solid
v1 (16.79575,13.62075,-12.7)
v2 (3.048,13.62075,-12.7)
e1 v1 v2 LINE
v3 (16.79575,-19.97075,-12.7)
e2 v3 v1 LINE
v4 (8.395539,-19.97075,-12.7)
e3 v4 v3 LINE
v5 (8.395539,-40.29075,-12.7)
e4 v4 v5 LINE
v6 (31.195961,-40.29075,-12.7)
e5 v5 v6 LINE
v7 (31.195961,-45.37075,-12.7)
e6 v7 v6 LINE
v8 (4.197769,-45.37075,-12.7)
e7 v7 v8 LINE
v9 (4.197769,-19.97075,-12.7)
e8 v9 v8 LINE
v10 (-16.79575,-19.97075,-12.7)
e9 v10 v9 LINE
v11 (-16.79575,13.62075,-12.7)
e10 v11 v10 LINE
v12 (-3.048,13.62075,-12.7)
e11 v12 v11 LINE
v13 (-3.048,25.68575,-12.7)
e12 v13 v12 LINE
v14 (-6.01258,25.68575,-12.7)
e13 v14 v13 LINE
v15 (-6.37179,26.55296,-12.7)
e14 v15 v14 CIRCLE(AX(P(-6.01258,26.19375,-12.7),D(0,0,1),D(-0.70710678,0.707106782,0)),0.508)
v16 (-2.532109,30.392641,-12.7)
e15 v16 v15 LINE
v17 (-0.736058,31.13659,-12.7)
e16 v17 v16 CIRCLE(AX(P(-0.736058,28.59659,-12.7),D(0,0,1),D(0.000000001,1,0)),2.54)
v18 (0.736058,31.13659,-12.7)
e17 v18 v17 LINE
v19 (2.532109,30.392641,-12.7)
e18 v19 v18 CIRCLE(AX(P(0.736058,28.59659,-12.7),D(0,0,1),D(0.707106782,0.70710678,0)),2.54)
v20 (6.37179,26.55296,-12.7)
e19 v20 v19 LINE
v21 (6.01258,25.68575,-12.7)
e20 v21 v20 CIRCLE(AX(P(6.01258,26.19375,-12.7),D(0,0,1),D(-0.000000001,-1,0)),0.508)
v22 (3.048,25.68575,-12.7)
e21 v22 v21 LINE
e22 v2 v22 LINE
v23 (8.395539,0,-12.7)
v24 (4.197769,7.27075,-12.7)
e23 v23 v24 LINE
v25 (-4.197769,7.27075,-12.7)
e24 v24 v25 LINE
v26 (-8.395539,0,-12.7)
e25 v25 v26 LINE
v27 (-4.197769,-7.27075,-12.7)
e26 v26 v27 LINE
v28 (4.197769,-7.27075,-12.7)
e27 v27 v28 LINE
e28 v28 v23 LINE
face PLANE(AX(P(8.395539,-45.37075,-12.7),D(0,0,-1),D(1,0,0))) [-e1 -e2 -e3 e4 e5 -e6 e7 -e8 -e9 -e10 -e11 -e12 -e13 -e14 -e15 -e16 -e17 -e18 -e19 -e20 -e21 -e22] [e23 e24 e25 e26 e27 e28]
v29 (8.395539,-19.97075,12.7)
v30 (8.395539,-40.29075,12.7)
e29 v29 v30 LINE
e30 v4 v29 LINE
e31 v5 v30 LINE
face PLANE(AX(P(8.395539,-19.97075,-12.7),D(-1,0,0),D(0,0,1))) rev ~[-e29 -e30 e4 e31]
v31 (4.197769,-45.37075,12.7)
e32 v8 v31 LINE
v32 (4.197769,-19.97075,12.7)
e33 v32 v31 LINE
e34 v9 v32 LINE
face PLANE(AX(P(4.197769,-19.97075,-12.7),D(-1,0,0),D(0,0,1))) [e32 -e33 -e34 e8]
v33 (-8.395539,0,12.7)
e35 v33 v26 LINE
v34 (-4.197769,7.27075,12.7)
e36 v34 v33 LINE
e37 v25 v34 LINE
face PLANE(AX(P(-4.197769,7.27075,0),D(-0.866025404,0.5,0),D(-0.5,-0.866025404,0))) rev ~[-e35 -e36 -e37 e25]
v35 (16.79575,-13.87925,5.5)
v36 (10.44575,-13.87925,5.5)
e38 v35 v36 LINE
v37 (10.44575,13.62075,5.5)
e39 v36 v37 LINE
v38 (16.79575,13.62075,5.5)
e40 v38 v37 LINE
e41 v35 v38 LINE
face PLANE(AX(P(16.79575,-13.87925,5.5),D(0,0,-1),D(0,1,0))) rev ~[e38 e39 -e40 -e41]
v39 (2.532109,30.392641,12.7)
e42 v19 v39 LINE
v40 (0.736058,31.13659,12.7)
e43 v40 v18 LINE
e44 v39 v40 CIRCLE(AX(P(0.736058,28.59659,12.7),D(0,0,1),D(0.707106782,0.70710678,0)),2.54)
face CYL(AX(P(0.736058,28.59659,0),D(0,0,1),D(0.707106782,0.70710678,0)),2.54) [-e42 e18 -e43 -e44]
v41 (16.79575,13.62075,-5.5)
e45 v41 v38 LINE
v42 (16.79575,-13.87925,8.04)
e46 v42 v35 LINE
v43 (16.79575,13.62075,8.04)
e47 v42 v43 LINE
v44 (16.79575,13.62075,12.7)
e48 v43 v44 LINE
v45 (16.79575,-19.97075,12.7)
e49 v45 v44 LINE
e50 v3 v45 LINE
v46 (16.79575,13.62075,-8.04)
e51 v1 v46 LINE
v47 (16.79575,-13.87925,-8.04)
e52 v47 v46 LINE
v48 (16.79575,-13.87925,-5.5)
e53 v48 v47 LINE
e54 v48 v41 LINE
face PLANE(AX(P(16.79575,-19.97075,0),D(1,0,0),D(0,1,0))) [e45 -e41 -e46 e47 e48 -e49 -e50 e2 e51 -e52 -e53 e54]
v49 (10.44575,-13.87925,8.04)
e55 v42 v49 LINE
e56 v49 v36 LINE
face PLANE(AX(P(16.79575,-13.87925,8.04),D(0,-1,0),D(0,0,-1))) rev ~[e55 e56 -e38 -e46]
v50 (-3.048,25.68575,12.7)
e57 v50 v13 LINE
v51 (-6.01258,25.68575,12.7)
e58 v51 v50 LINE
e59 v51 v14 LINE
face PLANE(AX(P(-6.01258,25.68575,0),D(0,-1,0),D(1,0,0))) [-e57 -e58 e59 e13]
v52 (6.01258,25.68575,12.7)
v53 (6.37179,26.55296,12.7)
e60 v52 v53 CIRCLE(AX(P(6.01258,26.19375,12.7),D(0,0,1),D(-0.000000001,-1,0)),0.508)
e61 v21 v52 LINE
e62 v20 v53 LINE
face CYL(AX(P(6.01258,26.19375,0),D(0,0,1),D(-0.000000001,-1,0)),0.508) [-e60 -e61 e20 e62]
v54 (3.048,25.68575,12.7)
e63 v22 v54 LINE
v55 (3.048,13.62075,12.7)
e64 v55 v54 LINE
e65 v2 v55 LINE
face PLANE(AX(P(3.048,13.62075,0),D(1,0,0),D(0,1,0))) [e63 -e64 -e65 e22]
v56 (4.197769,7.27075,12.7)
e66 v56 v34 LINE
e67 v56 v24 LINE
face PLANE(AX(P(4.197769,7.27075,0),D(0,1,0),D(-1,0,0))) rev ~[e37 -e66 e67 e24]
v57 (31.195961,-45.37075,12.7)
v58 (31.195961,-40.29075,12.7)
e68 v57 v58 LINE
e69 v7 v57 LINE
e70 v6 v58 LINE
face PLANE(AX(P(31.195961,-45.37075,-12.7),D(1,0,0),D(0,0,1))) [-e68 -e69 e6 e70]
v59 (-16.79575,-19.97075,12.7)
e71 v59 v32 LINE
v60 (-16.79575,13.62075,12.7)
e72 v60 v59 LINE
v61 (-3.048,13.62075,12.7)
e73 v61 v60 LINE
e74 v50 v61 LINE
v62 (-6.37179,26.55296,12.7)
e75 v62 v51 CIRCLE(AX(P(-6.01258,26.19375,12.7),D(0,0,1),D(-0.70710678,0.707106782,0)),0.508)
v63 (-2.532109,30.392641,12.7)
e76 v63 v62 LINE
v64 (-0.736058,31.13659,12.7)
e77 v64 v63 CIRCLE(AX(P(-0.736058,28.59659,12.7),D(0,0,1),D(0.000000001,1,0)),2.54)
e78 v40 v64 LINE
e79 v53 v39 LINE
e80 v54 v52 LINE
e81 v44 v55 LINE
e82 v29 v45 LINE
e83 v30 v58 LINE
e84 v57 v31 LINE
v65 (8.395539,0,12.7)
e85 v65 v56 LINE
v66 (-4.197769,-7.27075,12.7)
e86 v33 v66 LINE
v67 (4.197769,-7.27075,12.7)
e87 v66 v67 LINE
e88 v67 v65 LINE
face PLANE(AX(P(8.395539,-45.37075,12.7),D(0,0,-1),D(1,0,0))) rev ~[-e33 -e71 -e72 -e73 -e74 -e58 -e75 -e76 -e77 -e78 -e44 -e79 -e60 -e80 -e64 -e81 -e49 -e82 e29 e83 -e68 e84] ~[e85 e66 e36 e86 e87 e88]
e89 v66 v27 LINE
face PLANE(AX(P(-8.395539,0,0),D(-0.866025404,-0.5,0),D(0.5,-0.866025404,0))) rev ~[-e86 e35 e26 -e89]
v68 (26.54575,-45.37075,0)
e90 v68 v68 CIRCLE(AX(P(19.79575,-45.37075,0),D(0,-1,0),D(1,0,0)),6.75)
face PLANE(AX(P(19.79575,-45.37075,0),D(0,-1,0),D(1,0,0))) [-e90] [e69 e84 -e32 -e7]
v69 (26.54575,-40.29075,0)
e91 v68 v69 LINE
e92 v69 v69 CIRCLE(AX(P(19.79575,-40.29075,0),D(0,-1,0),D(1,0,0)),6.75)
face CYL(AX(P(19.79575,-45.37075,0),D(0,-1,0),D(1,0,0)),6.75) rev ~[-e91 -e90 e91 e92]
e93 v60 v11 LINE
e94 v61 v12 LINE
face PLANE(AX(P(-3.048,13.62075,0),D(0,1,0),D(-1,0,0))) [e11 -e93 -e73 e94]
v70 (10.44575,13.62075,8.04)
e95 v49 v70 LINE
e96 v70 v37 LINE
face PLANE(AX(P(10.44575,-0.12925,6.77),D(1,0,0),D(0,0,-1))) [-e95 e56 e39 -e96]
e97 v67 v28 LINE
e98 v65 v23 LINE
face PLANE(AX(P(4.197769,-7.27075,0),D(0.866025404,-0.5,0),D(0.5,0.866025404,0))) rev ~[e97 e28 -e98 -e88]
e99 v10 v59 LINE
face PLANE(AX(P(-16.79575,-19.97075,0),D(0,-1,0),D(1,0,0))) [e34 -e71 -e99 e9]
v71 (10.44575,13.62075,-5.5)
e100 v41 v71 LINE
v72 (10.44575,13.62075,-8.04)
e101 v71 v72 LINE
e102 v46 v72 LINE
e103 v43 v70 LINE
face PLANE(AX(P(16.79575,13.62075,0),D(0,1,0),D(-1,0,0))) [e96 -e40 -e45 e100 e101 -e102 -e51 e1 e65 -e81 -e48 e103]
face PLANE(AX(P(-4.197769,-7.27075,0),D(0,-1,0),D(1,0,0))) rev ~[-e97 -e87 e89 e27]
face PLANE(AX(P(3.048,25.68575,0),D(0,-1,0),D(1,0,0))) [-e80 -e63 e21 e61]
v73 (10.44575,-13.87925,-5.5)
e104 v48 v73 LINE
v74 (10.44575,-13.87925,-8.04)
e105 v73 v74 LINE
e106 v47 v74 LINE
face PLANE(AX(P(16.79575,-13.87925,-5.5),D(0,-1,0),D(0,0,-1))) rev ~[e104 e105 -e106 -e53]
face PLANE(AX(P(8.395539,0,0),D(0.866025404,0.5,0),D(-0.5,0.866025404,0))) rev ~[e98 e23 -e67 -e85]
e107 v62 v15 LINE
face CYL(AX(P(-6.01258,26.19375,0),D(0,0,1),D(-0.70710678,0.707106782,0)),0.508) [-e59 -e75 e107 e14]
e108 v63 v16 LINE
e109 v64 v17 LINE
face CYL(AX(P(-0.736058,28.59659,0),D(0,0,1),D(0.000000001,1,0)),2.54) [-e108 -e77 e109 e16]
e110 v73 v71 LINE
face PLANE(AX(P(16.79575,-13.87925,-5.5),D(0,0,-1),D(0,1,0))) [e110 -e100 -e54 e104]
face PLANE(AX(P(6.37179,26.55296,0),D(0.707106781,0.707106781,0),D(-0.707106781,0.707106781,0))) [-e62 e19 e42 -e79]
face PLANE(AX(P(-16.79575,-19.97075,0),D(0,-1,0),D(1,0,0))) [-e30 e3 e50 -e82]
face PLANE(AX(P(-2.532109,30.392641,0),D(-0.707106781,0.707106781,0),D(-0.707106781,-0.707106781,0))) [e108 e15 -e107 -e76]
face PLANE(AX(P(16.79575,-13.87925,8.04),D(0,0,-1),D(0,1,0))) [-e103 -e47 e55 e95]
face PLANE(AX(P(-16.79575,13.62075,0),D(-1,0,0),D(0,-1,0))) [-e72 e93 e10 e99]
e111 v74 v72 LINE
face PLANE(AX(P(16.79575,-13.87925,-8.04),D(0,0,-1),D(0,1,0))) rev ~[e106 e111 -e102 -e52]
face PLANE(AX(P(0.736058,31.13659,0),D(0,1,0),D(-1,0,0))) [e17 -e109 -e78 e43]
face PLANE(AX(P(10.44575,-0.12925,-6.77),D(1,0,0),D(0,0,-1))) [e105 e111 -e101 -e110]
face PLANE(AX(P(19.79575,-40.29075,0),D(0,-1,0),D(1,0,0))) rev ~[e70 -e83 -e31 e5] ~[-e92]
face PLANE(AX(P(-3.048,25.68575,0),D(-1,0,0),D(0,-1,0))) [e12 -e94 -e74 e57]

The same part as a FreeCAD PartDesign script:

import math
import FreeCAD as App
import Part
import Sketcher

V = App.Vector
Q = App.Units.Quantity


def add_polygon(sketch, points):
    """Adds a closed chain of lines whose ends are joined by coincident constraints."""
    first, n = sketch.GeometryCount, len(points)
    for a, b in zip(points, points[1:] + points[:1]):
        sketch.addGeometry(Part.LineSegment(App.Vector(*a, 0), App.Vector(*b, 0)), False)
    for i in range(n):
        sketch.addConstraint(Sketcher.Constraint("Coincident", first + i, 2, first + (i + 1) % n, 1))

doc = App.newDocument("Part")
params = doc.addObject("Spreadsheet::Sheet", "Params")
for row, (alias, value) in enumerate([
    ("sketch1_radius", "0.1 in"),
    ("sketch1_radius2", "0.02 in"),
    ("sketch1_height", "0.475 in"),
    ("pad1_length", "1 in"),
    ("sketch2_height", "0.1 in"),
    ("pocket1_length", "0.25 in"),
    ("sketch3_height", "1 in"),
    ("pad2_length", "1 in"),
    ("sketch4_height", "1 in"),
    ("pad3_length", "0.2 in"),
], start=1):
    params.set(f"A{row}", alias)
    params.set(f"B{row}", "=" + value)
    params.setAlias(f"B{row}", alias)

body = doc.addObject("PartDesign::Body", "Body")

# Sketch on XY plane
sketch1 = doc.addObject("Sketcher::SketchObject", "Sketch")
body.addObject(sketch1)
sketch1.AttachmentSupport = (doc.XY_Plane, [""])
sketch1.MapMode = "FlatFace"
sketch1.addGeometry(Part.LineSegment(V(-16.8, 13.6, 0), V(-16.8, -20, 0)), False)  # 0
sketch1.addGeometry(Part.LineSegment(V(-16.8, -20, 0), V(16.8, -20, 0)), False)  # 1
sketch1.addGeometry(Part.LineSegment(V(16.8, -20, 0), V(16.8, 13.6, 0)), False)  # 2
sketch1.addGeometry(Part.LineSegment(V(16.8, 13.6, 0), V(3, 13.6, 0)), False)  # 3
sketch1.addGeometry(Part.LineSegment(V(3, 13.6, 0), V(3, 25.7, 0)), False)  # 4
sketch1.addGeometry(Part.LineSegment(V(3, 25.7, 0), V(6, 25.7, 0)), False)  # 5
sketch1.addGeometry(Part.ArcOfCircle(Part.Circle(V(6, 26.2, 0), V(0, 0, 1), 0.5), math.radians(-90), math.radians(45)), False)  # 6
sketch1.addGeometry(Part.LineSegment(V(6.4, 26.6, 0), V(2.5, 30.4, 0)), False)  # 7
sketch1.addGeometry(Part.ArcOfCircle(Part.Circle(V(0.7, 28.6, 0), V(0, 0, 1), 2.5), math.radians(45), math.radians(90)), False)  # 8
sketch1.addGeometry(Part.LineSegment(V(0.7, 31.1, 0), V(-0.7, 31.1, 0)), False)  # 9
sketch1.addGeometry(Part.ArcOfCircle(Part.Circle(V(-0.7, 28.6, 0), V(0, 0, 1), 2.5), math.radians(90), math.radians(135)), False)  # 10
sketch1.addGeometry(Part.LineSegment(V(-2.5, 30.4, 0), V(-6.4, 26.6, 0)), False)  # 11
sketch1.addGeometry(Part.ArcOfCircle(Part.Circle(V(-6, 26.2, 0), V(0, 0, 1), 0.5), math.radians(135), math.radians(270)), False)  # 12
sketch1.addGeometry(Part.LineSegment(V(-6, 25.7, 0), V(-3, 25.7, 0)), False)  # 13
sketch1.addGeometry(Part.LineSegment(V(-3, 25.7, 0), V(-3, 13.6, 0)), False)  # 14
sketch1.addGeometry(Part.LineSegment(V(-3, 13.6, 0), V(-16.8, 13.6, 0)), False)  # 15
add_polygon(sketch1, [(-8.4, 0), (-4.2, 7.3), (4.2, 7.3), (8.4, 0), (4.2, -7.3), (-4.2, -7.3)])  # lines 16-21
sketch1.addConstraint(Sketcher.Constraint("Coincident", 0, 2, 1, 1))
sketch1.addConstraint(Sketcher.Constraint("Coincident", 1, 2, 2, 1))
sketch1.addConstraint(Sketcher.Constraint("Coincident", 2, 2, 3, 1))
sketch1.addConstraint(Sketcher.Constraint("Coincident", 3, 2, 4, 1))
sketch1.addConstraint(Sketcher.Constraint("Coincident", 4, 2, 5, 1))
sketch1.addConstraint(Sketcher.Constraint("Tangent", 5, 2, 6, 1))
sketch1.addConstraint(Sketcher.Constraint("Tangent", 6, 2, 7, 1))
sketch1.addConstraint(Sketcher.Constraint("Tangent", 7, 2, 8, 1))
sketch1.addConstraint(Sketcher.Constraint("Tangent", 8, 2, 9, 1))
sketch1.addConstraint(Sketcher.Constraint("Tangent", 9, 2, 10, 1))
sketch1.addConstraint(Sketcher.Constraint("Tangent", 10, 2, 11, 1))
sketch1.addConstraint(Sketcher.Constraint("Tangent", 11, 2, 12, 1))
sketch1.addConstraint(Sketcher.Constraint("Tangent", 12, 2, 13, 1))
sketch1.addConstraint(Sketcher.Constraint("Coincident", 13, 2, 14, 1))
sketch1.addConstraint(Sketcher.Constraint("Coincident", 14, 2, 15, 1))
sketch1.addConstraint(Sketcher.Constraint("Coincident", 15, 2, 0, 1))
sketch1.addConstraint(Sketcher.Constraint("Vertical", 0))
sketch1.addConstraint(Sketcher.Constraint("Horizontal", 1))
sketch1.addConstraint(Sketcher.Constraint("Vertical", 2))
sketch1.addConstraint(Sketcher.Constraint("Horizontal", 3))
sketch1.addConstraint(Sketcher.Constraint("Vertical", 4))
sketch1.addConstraint(Sketcher.Constraint("Horizontal", 5))
sketch1.addConstraint(Sketcher.Constraint("Horizontal", 9))
sketch1.addConstraint(Sketcher.Constraint("Horizontal", 13))
sketch1.addConstraint(Sketcher.Constraint("Vertical", 14))
sketch1.addConstraint(Sketcher.Constraint("Horizontal", 15))
sketch1.addConstraint(Sketcher.Constraint("Horizontal", 17))
sketch1.addConstraint(Sketcher.Constraint("Horizontal", 20))
sketch1.addConstraint(Sketcher.Constraint("Equal", 8, 10))
sketch1.addConstraint(Sketcher.Constraint("Equal", 6, 12))
sketch1.addConstraint(Sketcher.Constraint("Symmetric", 16, 2, 19, 2, -1, 1))
sketch1.addConstraint(Sketcher.Constraint("Symmetric", 18, 2, 21, 2, -1, 1))
sketch1.addConstraint(Sketcher.Constraint("Symmetric", 6, 3, 12, 3, -2))
sketch1.addConstraint(Sketcher.Constraint("Symmetric", 3, 2, 14, 2, -2))
sketch1.addConstraint(Sketcher.Constraint("PointOnObject", 18, 2, -1))
sketch1.addConstraint(Sketcher.Constraint("Perpendicular", 7, 11))
sketch1.addConstraint(Sketcher.Constraint("Parallel", 18, 21))
sketch1.addConstraint(Sketcher.Constraint("Horizontal", 7, 2, 10, 2))
sketch1.addConstraint(Sketcher.Constraint("Vertical", 17, 2, 19, 2))
sketch1.addConstraint(Sketcher.Constraint("Equal", 3, 15))
sketch1.addConstraint(Sketcher.Constraint("Equal", 1, 0))
sketch1.addConstraint(Sketcher.Constraint("Radius", 8, Q("0.1 in")))
sketch1.addConstraint(Sketcher.Constraint("Radius", 6, Q("0.02 in")))
sketch1.addConstraint(Sketcher.Constraint("Angle", 16, Q("60 deg")))
sketch1.addConstraint(Sketcher.Constraint("DistanceY", 1, 2, 19, 2, Q("0.5 in")))
sketch1.addConstraint(Sketcher.Constraint("DistanceY", 4, 1, 4, 2, Q("0.475 in")))
sketch1.addConstraint(Sketcher.Constraint("DistanceX", -1, 1, 3, 2, Q("0.12 in")))
sketch1.addConstraint(Sketcher.Constraint("DistanceY", 16, 2, 14, 2, Q("0.25 in")))
sketch1.addConstraint(Sketcher.Constraint("DistanceX", 1, 1, 1, 2, Q("1.3225 in")))
sketch1.addConstraint(Sketcher.Constraint("DistanceY", 6, 3, 8, 3, Q("0.0946 in")))
sketch1.addConstraint(Sketcher.Constraint("DistanceX", 5, 1, 5, 2, 2.96458))
sketch1.addConstraint(Sketcher.Constraint("DistanceX", 17, 1, 17, 2, 8.395539))
sketch1.setExpression("Constraints[47]", "Params.sketch1_radius")
sketch1.setExpression("Constraints[48]", "Params.sketch1_radius2")
sketch1.setExpression("Constraints[51]", "Params.sketch1_height")
pad1 = doc.addObject("PartDesign::Pad", "Pad")
body.addObject(pad1)
pad1.Profile = sketch1
pad1.setExpression("Length", "Params.pad1_length")
pad1.Midplane = True

# Sketch on YZ plane
sketch2 = doc.addObject("Sketcher::SketchObject", "Sketch001")
body.addObject(sketch2)
sketch2.AttachmentSupport = (doc.YZ_Plane, [""])
sketch2.MapMode = "FlatFace"
sketch2.AttachmentOffset = App.Placement(V(0, 0, 16.79575), App.Rotation())
add_polygon(sketch2, [(13.6, 8), (-13.9, 8), (-13.9, 5.5), (13.6, 5.5)])  # lines 0-3
add_polygon(sketch2, [(13.6, -5.5), (-13.9, -5.5), (-13.9, -8), (13.6, -8)])  # lines 4-7
sketch2.addConstraint(Sketcher.Constraint("Horizontal", 0))
sketch2.addConstraint(Sketcher.Constraint("Vertical", 1))
sketch2.addConstraint(Sketcher.Constraint("Horizontal", 2))
sketch2.addConstraint(Sketcher.Constraint("Vertical", 3))
sketch2.addConstraint(Sketcher.Constraint("Horizontal", 4))
sketch2.addConstraint(Sketcher.Constraint("Vertical", 5))
sketch2.addConstraint(Sketcher.Constraint("Horizontal", 6))
sketch2.addConstraint(Sketcher.Constraint("Vertical", 7))
sketch2.addConstraint(Sketcher.Constraint("Symmetric", 1, 2, 4, 2, -1))
sketch2.addConstraint(Sketcher.Constraint("Symmetric", 3, 2, 6, 2, -1))
sketch2.addConstraint(Sketcher.Constraint("DistanceY", 1, 2, 1, 1, Q("0.1 in")))
sketch2.addConstraint(Sketcher.Constraint("DistanceX", 0, 2, 0, 1, 27.5))
sketch2.addConstraint(Sketcher.Constraint("DistanceY", -1, 1, 0, 2, 8.04))
sketch2.addConstraint(Sketcher.Constraint("DistanceX", 0, 2, -1, 1, 13.87925))
sketch2.setExpression("Constraints[18]", "Params.sketch2_height")
pocket1 = doc.addObject("PartDesign::Pocket", "Pocket")
body.addObject(pocket1)
pocket1.Profile = sketch2
pocket1.setExpression("Length", "Params.pocket1_length")

# Sketch on XZ plane
sketch3 = doc.addObject("Sketcher::SketchObject", "Sketch002")
body.addObject(sketch3)
sketch3.AttachmentSupport = (doc.XZ_Plane, [""])
sketch3.MapMode = "FlatFace"
sketch3.AttachmentOffset = App.Placement(V(0, 0, 19.97075), App.Rotation())
add_polygon(sketch3, [(4.2, 12.7), (4.2, -12.7), (8.4, -12.7), (8.4, 12.7)])  # lines 0-3
sketch3.addConstraint(Sketcher.Constraint("Vertical", 0))
sketch3.addConstraint(Sketcher.Constraint("Horizontal", 1))
sketch3.addConstraint(Sketcher.Constraint("Vertical", 2))
sketch3.addConstraint(Sketcher.Constraint("Horizontal", 3))
sketch3.addConstraint(Sketcher.Constraint("DistanceY", 0, 2, 0, 1, Q("1 in")))
sketch3.addConstraint(Sketcher.Constraint("DistanceY", 0, 2, -1, 1, Q("0.5 in")))
sketch3.addConstraint(Sketcher.Constraint("DistanceX", 1, 1, 1, 2, 4.197769))
sketch3.addConstraint(Sketcher.Constraint("DistanceX", -1, 1, 0, 2, 4.197769))
sketch3.setExpression("Constraints[8]", "Params.sketch3_height")
pad2 = doc.addObject("PartDesign::Pad", "Pad001")
body.addObject(pad2)
pad2.Profile = sketch3
pad2.setExpression("Length", "Params.pad2_length")

# Sketch on XZ plane
sketch4 = doc.addObject("Sketcher::SketchObject", "Sketch003")
body.addObject(sketch4)
sketch4.AttachmentSupport = (doc.XZ_Plane, [""])
sketch4.MapMode = "FlatFace"
sketch4.AttachmentOffset = App.Placement(V(0, 0, 45.37075), App.Rotation())
add_polygon(sketch4, [(8, 13), (8, -13), (31, -13), (31, 13)])  # lines 0-3
sketch4.addGeometry(Part.Circle(V(20, 0, 0), V(0, 0, 1), 7), False)  # 4
sketch4.addConstraint(Sketcher.Constraint("Vertical", 0))
sketch4.addConstraint(Sketcher.Constraint("Horizontal", 1))
sketch4.addConstraint(Sketcher.Constraint("Vertical", 2))
sketch4.addConstraint(Sketcher.Constraint("Horizontal", 3))
sketch4.addConstraint(Sketcher.Constraint("PointOnObject", 4, 3, -1))
sketch4.addConstraint(Sketcher.Constraint("DistanceY", 0, 2, 0, 1, Q("1 in")))
sketch4.addConstraint(Sketcher.Constraint("DistanceY", 0, 2, -1, 1, Q("0.5 in")))
sketch4.addConstraint(Sketcher.Constraint("Diameter", 4, 13.5))
sketch4.addConstraint(Sketcher.Constraint("DistanceX", 1, 1, 1, 2, 22.800422))
sketch4.addConstraint(Sketcher.Constraint("DistanceX", -1, 1, 4, 3, 19.79575))
sketch4.addConstraint(Sketcher.Constraint("DistanceX", -1, 1, 0, 2, 8.395539))
sketch4.setExpression("Constraints[9]", "Params.sketch4_height")
pad3 = doc.addObject("PartDesign::Pad", "Pad002")
body.addObject(pad3)
pad3.Profile = sketch4
pad3.setExpression("Length", "Params.pad3_length")
pad3.Reversed = True

doc.recompute()
